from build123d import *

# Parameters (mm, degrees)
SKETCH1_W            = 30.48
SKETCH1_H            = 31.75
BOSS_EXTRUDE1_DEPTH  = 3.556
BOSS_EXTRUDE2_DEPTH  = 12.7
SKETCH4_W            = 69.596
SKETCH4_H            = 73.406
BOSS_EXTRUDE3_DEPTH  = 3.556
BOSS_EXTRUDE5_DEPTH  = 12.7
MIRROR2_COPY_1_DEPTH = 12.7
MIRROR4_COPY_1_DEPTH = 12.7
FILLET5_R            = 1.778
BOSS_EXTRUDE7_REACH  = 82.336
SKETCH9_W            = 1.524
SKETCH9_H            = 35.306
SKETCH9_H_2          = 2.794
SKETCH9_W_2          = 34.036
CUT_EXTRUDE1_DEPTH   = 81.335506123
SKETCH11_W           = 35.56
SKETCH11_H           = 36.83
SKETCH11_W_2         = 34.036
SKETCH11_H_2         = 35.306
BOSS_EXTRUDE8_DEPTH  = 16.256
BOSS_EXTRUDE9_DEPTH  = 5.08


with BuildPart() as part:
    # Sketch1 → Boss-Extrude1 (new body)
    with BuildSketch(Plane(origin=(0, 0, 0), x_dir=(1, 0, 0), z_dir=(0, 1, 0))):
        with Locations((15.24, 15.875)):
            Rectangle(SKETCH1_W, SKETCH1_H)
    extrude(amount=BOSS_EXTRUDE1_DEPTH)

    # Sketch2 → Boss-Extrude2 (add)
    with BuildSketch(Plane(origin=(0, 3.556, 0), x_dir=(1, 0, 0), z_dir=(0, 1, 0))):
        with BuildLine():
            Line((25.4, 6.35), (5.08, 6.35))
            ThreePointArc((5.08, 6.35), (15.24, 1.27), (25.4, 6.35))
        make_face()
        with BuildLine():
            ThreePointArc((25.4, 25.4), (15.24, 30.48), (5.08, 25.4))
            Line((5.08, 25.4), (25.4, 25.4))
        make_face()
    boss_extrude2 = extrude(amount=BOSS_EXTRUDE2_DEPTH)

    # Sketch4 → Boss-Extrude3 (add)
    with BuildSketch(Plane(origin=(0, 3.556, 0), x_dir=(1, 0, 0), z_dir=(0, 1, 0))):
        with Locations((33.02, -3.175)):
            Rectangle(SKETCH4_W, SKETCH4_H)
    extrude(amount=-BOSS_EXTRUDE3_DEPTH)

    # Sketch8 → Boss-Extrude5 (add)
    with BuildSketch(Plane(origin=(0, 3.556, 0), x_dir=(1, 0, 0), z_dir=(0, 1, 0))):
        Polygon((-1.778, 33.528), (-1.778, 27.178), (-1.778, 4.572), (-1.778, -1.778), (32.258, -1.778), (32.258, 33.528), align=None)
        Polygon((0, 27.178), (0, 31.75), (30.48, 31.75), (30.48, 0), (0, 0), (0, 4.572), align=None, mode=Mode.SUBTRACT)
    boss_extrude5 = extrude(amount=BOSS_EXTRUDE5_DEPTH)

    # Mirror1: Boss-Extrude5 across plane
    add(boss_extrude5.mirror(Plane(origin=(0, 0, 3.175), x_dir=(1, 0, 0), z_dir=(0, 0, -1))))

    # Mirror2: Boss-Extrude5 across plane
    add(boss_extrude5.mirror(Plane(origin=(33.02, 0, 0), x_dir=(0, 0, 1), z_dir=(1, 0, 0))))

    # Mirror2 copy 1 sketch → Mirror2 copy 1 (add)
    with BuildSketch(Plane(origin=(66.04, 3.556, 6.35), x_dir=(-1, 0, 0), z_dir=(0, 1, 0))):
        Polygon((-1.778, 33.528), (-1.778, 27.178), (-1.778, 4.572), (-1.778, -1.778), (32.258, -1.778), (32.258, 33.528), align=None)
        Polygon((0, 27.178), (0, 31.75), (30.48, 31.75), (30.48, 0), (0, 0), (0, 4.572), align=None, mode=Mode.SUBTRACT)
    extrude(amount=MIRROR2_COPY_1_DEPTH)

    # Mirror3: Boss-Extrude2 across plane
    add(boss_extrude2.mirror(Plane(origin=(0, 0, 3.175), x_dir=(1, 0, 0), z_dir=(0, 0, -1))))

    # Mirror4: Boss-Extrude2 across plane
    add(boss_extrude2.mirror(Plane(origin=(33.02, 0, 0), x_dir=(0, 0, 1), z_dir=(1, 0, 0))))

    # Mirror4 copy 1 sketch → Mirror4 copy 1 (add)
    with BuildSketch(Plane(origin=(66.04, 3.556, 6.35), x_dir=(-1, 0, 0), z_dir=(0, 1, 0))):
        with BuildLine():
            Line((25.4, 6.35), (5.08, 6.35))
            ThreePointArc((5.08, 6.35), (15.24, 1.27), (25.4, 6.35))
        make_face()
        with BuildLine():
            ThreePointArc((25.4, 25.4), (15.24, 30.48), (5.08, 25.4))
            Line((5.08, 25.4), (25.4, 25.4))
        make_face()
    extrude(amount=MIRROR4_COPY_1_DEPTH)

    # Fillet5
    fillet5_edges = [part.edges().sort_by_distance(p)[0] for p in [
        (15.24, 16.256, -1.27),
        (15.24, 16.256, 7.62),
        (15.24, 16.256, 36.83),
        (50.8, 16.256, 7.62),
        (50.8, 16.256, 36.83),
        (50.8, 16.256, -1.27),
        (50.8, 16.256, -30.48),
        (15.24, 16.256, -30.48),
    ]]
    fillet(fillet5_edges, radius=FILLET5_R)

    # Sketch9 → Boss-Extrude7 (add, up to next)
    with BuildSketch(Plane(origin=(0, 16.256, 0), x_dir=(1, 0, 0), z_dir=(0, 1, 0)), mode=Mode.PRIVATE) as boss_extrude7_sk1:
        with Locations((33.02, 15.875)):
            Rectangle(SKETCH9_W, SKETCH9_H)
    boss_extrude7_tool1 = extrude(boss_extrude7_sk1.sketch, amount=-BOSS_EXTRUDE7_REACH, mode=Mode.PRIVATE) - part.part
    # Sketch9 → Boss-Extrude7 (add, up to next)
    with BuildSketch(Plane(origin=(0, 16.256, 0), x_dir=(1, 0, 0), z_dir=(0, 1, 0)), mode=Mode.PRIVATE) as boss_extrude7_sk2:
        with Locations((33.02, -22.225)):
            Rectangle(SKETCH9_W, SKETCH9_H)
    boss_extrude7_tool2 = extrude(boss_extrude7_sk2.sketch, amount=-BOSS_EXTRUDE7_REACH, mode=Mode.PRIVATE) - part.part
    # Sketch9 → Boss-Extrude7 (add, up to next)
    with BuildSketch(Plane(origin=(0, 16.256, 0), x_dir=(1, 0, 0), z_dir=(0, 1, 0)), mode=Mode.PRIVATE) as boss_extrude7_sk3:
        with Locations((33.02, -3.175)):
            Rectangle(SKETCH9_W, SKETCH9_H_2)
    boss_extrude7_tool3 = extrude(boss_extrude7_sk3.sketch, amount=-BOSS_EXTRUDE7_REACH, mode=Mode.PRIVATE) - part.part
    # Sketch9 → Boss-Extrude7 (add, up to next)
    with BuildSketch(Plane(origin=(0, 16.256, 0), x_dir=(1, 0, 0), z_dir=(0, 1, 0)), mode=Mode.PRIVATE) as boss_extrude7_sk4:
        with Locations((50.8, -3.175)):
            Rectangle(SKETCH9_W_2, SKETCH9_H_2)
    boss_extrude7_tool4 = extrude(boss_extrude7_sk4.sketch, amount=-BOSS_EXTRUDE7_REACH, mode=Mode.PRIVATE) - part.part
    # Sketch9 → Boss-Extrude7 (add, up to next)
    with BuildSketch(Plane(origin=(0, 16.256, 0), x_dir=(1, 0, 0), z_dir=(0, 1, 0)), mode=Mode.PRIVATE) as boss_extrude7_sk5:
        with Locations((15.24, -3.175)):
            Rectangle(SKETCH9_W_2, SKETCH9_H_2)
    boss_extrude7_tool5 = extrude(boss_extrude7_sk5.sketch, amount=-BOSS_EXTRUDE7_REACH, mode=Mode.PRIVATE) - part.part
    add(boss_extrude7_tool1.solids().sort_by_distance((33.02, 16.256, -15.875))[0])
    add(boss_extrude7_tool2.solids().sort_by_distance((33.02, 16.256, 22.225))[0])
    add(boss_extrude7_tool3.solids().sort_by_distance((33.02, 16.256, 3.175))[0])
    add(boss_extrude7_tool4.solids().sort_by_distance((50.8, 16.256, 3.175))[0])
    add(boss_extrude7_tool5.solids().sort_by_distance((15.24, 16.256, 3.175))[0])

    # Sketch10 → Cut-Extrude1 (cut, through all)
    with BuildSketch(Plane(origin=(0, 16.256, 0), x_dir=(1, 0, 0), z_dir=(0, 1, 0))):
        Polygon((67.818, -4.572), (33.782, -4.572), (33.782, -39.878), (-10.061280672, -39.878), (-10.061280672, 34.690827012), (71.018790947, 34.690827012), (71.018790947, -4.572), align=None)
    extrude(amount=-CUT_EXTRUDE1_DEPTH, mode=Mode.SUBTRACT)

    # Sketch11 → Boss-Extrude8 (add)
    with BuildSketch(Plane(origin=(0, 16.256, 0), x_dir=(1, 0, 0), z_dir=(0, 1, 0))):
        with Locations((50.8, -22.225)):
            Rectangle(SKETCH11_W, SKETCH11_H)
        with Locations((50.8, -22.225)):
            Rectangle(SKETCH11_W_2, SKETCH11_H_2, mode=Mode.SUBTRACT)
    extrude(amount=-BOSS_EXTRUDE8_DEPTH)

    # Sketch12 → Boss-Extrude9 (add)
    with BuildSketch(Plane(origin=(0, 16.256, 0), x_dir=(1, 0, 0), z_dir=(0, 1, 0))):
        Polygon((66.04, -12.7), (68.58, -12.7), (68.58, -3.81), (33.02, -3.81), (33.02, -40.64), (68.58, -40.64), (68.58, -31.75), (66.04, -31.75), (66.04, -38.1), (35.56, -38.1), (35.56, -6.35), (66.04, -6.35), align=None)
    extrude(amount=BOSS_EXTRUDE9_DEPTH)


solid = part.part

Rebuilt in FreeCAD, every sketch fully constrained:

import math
import FreeCAD as App
import Part
import Sketcher
from FreeCAD import Vector
Q = App.Units.Quantity


def edges_at(feature, points):
    """Names of the edges that pass closest to the given points."""
    edges = feature.Shape.Edges
    near = lambda p: min(range(len(edges)), key=lambda i: edges[i].distToShape(Part.Vertex(*p))[0])
    return sorted({f"Edge{near(p) + 1}" for p in points})

doc = App.newDocument("Part")
body = doc.addObject("PartDesign::Body", "Body")

# Sketch on XZ plane
sketch1 = body.newObject("Sketcher::SketchObject", "Sketch")
sketch1.AttachmentSupport = (doc.getObject("XZ_Plane"), [""])
sketch1.MapMode = "FlatFace"
sketch1.addGeometry([
    Part.LineSegment(Vector(0, -31.75, 0), Vector(0, 0, 0)),
    Part.LineSegment(Vector(0, 0, 0), Vector(30.48, 0, 0)),
    Part.LineSegment(Vector(30.48, 0, 0), Vector(30.48, -31.75, 0)),
    Part.LineSegment(Vector(30.48, -31.75, 0), Vector(0, -31.75, 0)),
], False)
sketch1.addConstraint([
    Sketcher.Constraint("Coincident", 0, 2, 1, 1),
    Sketcher.Constraint("Coincident", 1, 2, 2, 1),
    Sketcher.Constraint("Coincident", 2, 2, 3, 1),
    Sketcher.Constraint("Coincident", 3, 2, 0, 1),
    Sketcher.Constraint("Vertical", 0),
    Sketcher.Constraint("Horizontal", 1),
    Sketcher.Constraint("Vertical", 2),
    Sketcher.Constraint("Horizontal", 3),
    Sketcher.Constraint("Coincident", 0, 2, -1, 1),
    Sketcher.Constraint("DistanceX", 1, 1, 1, 2, Q("1.2 in")),
    Sketcher.Constraint("DistanceY", 0, 1, 0, 2, Q("1.25 in")),
])
pad1 = body.newObject("PartDesign::Pad", "Pad")
pad1.Profile = sketch1
pad1.Length = Q("0.14 in")
pad1.Reversed = True

# Sketch on XZ plane
sketch2 = body.newObject("Sketcher::SketchObject", "Sketch001")
sketch2.AttachmentSupport = (doc.getObject("XZ_Plane"), [""])
sketch2.MapMode = "FlatFace"
sketch2.AttachmentOffset = App.Placement(Vector(0, 0, -0.14 * 25.4), App.Rotation())
sketch2.addGeometry([
    Part.LineSegment(Vector(25.4, -6.35, 0), Vector(5.08, -6.35, 0)),
    Part.ArcOfCircle(Part.Circle(Vector(15.24, -13.97, 0), Vector(0, 0, 1), 12.7), math.radians(36.869898), math.radians(143.130102)),
    Part.ArcOfCircle(Part.Circle(Vector(15.24, -17.78, 0), Vector(0, 0, 1), 12.7), math.radians(-143.130102), math.radians(-36.869898)),
    Part.LineSegment(Vector(5.08, -25.4, 0), Vector(25.4, -25.4, 0)),
], False)
sketch2.addConstraint([
    Sketcher.Constraint("Coincident", 0, 1, 1, 1),
    Sketcher.Constraint("Coincident", 1, 2, 0, 2),
    Sketcher.Constraint("Coincident", 2, 1, 3, 1),
    Sketcher.Constraint("Coincident", 3, 2, 2, 2),
    Sketcher.Constraint("Horizontal", 0),
    Sketcher.Constraint("Horizontal", 3),
    Sketcher.Constraint("Equal", 1, 2),
    Sketcher.Constraint("Vertical", 1, 3, 2, 3),
    Sketcher.Constraint("Vertical", 1, 2, 2, 1),
    Sketcher.Constraint("Radius", 1, Q("0.5 in")),
    Sketcher.Constraint("DistanceX", 0, 2, 0, 1, Q("0.8 in")),
    Sketcher.Constraint("DistanceX", -1, 1, 0, 1, Q("1 in")),
    Sketcher.Constraint("DistanceY", 2, 1, -1, 1, Q("1 in")),
    Sketcher.Constraint("DistanceY", 1, 3, -1, 1, Q("0.55 in")),
])
pad2 = body.newObject("PartDesign::Pad", "Pad001")
pad2.Profile = sketch2
pad2.Length = Q("0.5 in")
pad2.Reversed = True

# Sketch on XZ plane
sketch3 = body.newObject("Sketcher::SketchObject", "Sketch002")
sketch3.AttachmentSupport = (doc.getObject("XZ_Plane"), [""])
sketch3.MapMode = "FlatFace"
sketch3.AttachmentOffset = App.Placement(Vector(0, 0, -0.14 * 25.4), App.Rotation())
sketch3.addGeometry([
    Part.LineSegment(Vector(-1.778, -33.528, 0), Vector(-1.778, 39.878, 0)),
    Part.LineSegment(Vector(-1.778, 39.878, 0), Vector(67.818, 39.878, 0)),
    Part.LineSegment(Vector(67.818, 39.878, 0), Vector(67.818, -33.528, 0)),
    Part.LineSegment(Vector(67.818, -33.528, 0), Vector(-1.778, -33.528, 0)),
], False)
sketch3.addConstraint([
    Sketcher.Constraint("Coincident", 0, 2, 1, 1),
    Sketcher.Constraint("Coincident", 1, 2, 2, 1),
    Sketcher.Constraint("Coincident", 2, 2, 3, 1),
    Sketcher.Constraint("Coincident", 3, 2, 0, 1),
    Sketcher.Constraint("Vertical", 0),
    Sketcher.Constraint("Horizontal", 1),
    Sketcher.Constraint("Vertical", 2),
    Sketcher.Constraint("Horizontal", 3),
    Sketcher.Constraint("DistanceX", 1, 1, 1, 2, Q("2.74 in")),
    Sketcher.Constraint("DistanceY", 0, 1, 0, 2, Q("2.89 in")),
    Sketcher.Constraint("DistanceX", 0, 2, -1, 1, Q("0.07 in")),
    Sketcher.Constraint("DistanceY", -1, 1, 0, 2, Q("1.57 in")),
])
pad3 = body.newObject("PartDesign::Pad", "Pad002")
pad3.Profile = sketch3
pad3.Length = Q("0.14 in")

# Sketch on XZ plane
sketch4 = body.newObject("Sketcher::SketchObject", "Sketch003")
sketch4.AttachmentSupport = (doc.getObject("XZ_Plane"), [""])
sketch4.MapMode = "FlatFace"
sketch4.AttachmentOffset = App.Placement(Vector(0, 0, -0.14 * 25.4), App.Rotation())
sketch4.addGeometry([
    Part.LineSegment(Vector(-1.778, -33.528, 0), Vector(-1.778, 1.778, 0)),  # 0
    Part.LineSegment(Vector(-1.778, 1.778, 0), Vector(32.258, 1.778, 0)),  # 1
    Part.LineSegment(Vector(32.258, 1.778, 0), Vector(32.258, -33.528, 0)),  # 2
    Part.LineSegment(Vector(32.258, -33.528, 0), Vector(-1.778, -33.528, 0)),  # 3
    Part.LineSegment(Vector(0, 0, 0), Vector(0, -31.75, 0)),  # 4
    Part.LineSegment(Vector(0, -31.75, 0), Vector(30.48, -31.75, 0)),  # 5
    Part.LineSegment(Vector(30.48, -31.75, 0), Vector(30.48, 0, 0)),  # 6
    Part.LineSegment(Vector(30.48, 0, 0), Vector(0, 0, 0)),  # 7
], False)
sketch4.addConstraint([
    Sketcher.Constraint("Coincident", 0, 2, 1, 1),
    Sketcher.Constraint("Coincident", 1, 2, 2, 1),
    Sketcher.Constraint("Coincident", 2, 2, 3, 1),
    Sketcher.Constraint("Coincident", 3, 2, 0, 1),
    Sketcher.Constraint("Coincident", 4, 2, 5, 1),
    Sketcher.Constraint("Coincident", 5, 2, 6, 1),
    Sketcher.Constraint("Coincident", 6, 2, 7, 1),
    Sketcher.Constraint("Coincident", 7, 2, 4, 1),
    Sketcher.Constraint("Vertical", 0),
    Sketcher.Constraint("Horizontal", 1),
    Sketcher.Constraint("Vertical", 2),
    Sketcher.Constraint("Horizontal", 3),
    Sketcher.Constraint("Vertical", 4),
    Sketcher.Constraint("Horizontal", 5),
    Sketcher.Constraint("Vertical", 6),
    Sketcher.Constraint("Horizontal", 7),
    Sketcher.Constraint("Coincident", 7, 2, -1, 1),
    Sketcher.Constraint("DistanceX", 5, 1, 5, 2, Q("1.2 in")),
    Sketcher.Constraint("DistanceX", 1, 1, 1, 2, Q("1.34 in")),
    Sketcher.Constraint("DistanceY", 0, 1, 0, 2, Q("1.39 in")),
    Sketcher.Constraint("DistanceY", 4, 2, 4, 1, Q("1.25 in")),
    Sketcher.Constraint("DistanceX", 0, 2, -1, 1, Q("0.07 in")),
    Sketcher.Constraint("DistanceY", -1, 1, 0, 2, Q("0.07 in")),
])
pad4 = body.newObject("PartDesign::Pad", "Pad003")
pad4.Profile = sketch4
pad4.Length = Q("0.5 in")
pad4.Reversed = True
doc.recompute()

datumplane = body.newObject("PartDesign::Plane", "DatumPlane")
datumplane.AttachmentSupport = (doc.getObject("XY_Plane"), [""])
datumplane.MapMode = "FlatFace"
datumplane.AttachmentOffset = App.Placement(Vector(0, 0, 0.125 * 25.4), App.Rotation())
mirrored = body.newObject("PartDesign::Mirrored", "Mirrored")
mirrored.Originals = [pad4]
mirrored.MirrorPlane = (datumplane, [""])
body.Tip = mirrored
doc.recompute()

datumplane2 = body.newObject("PartDesign::Plane", "DatumPlane001")
datumplane2.AttachmentSupport = (doc.getObject("YZ_Plane"), [""])
datumplane2.MapMode = "FlatFace"
datumplane2.AttachmentOffset = App.Placement(Vector(0, 0, 1.3 * 25.4), App.Rotation())
mirrored2 = body.newObject("PartDesign::Mirrored", "Mirrored001")
mirrored2.Originals = [pad4]
mirrored2.MirrorPlane = (datumplane2, [""])
body.Tip = mirrored2

# Sketch on XZ plane
sketch5 = body.newObject("Sketcher::SketchObject", "Sketch004")
sketch5.AttachmentSupport = (doc.getObject("XZ_Plane"), [""])
sketch5.MapMode = "FlatFace"
sketch5.AttachmentOffset = App.Placement(Vector(0, 0, -0.14 * 25.4), App.Rotation())
sketch5.addGeometry([
    Part.LineSegment(Vector(67.818, 39.878, 0), Vector(67.818, 4.572, 0)),  # 0
    Part.LineSegment(Vector(67.818, 4.572, 0), Vector(33.782, 4.572, 0)),  # 1
    Part.LineSegment(Vector(33.782, 4.572, 0), Vector(33.782, 39.878, 0)),  # 2
    Part.LineSegment(Vector(33.782, 39.878, 0), Vector(67.818, 39.878, 0)),  # 3
    Part.LineSegment(Vector(66.04, 6.35, 0), Vector(66.04, 38.1, 0)),  # 4
    Part.LineSegment(Vector(66.04, 38.1, 0), Vector(35.56, 38.1, 0)),  # 5
    Part.LineSegment(Vector(35.56, 38.1, 0), Vector(35.56, 6.35, 0)),  # 6
    Part.LineSegment(Vector(35.56, 6.35, 0), Vector(66.04, 6.35, 0)),  # 7
], False)
sketch5.addConstraint([
    Sketcher.Constraint("Coincident", 0, 2, 1, 1),
    Sketcher.Constraint("Coincident", 1, 2, 2, 1),
    Sketcher.Constraint("Coincident", 2, 2, 3, 1),
    Sketcher.Constraint("Coincident", 3, 2, 0, 1),
    Sketcher.Constraint("Coincident", 4, 2, 5, 1),
    Sketcher.Constraint("Coincident", 5, 2, 6, 1),
    Sketcher.Constraint("Coincident", 6, 2, 7, 1),
    Sketcher.Constraint("Coincident", 7, 2, 4, 1),
    Sketcher.Constraint("Vertical", 0),
    Sketcher.Constraint("Horizontal", 1),
    Sketcher.Constraint("Vertical", 2),
    Sketcher.Constraint("Horizontal", 3),
    Sketcher.Constraint("Vertical", 4),
    Sketcher.Constraint("Horizontal", 5),
    Sketcher.Constraint("Vertical", 6),
    Sketcher.Constraint("Horizontal", 7),
    Sketcher.Constraint("DistanceX", 5, 2, 5, 1, Q("1.2 in")),
    Sketcher.Constraint("DistanceX", 1, 2, 1, 1, Q("1.34 in")),
    Sketcher.Constraint("DistanceY", 0, 2, 0, 1, Q("1.39 in")),
    Sketcher.Constraint("DistanceY", 4, 1, 4, 2, Q("1.25 in")),
    Sketcher.Constraint("DistanceX", -1, 1, 4, 2, Q("2.6 in")),
    Sketcher.Constraint("DistanceY", -1, 1, 4, 2, Q("1.5 in")),
    Sketcher.Constraint("DistanceX", -1, 1, 0, 2, Q("2.67 in")),
    Sketcher.Constraint("DistanceY", -1, 1, 0, 2, Q("0.18 in")),
])
pad5 = body.newObject("PartDesign::Pad", "Pad004")
pad5.Profile = sketch5
pad5.Length = Q("0.5 in")
pad5.Reversed = True
doc.recompute()

datumplane3 = body.newObject("PartDesign::Plane", "DatumPlane002")
datumplane3.AttachmentSupport = (doc.getObject("XY_Plane"), [""])
datumplane3.MapMode = "FlatFace"
datumplane3.AttachmentOffset = App.Placement(Vector(0, 0, 0.125 * 25.4), App.Rotation())
mirrored3 = body.newObject("PartDesign::Mirrored", "Mirrored002")
mirrored3.Originals = [pad2]
mirrored3.MirrorPlane = (datumplane3, [""])
body.Tip = mirrored3
doc.recompute()

datumplane4 = body.newObject("PartDesign::Plane", "DatumPlane003")
datumplane4.AttachmentSupport = (doc.getObject("YZ_Plane"), [""])
datumplane4.MapMode = "FlatFace"
datumplane4.AttachmentOffset = App.Placement(Vector(0, 0, 1.3 * 25.4), App.Rotation())
mirrored4 = body.newObject("PartDesign::Mirrored", "Mirrored003")
mirrored4.Originals = [pad2]
mirrored4.MirrorPlane = (datumplane4, [""])
body.Tip = mirrored4

# Sketch on XZ plane
sketch6 = body.newObject("Sketcher::SketchObject", "Sketch005")
sketch6.AttachmentSupport = (doc.getObject("XZ_Plane"), [""])
sketch6.MapMode = "FlatFace"
sketch6.AttachmentOffset = App.Placement(Vector(0, 0, -0.14 * 25.4), App.Rotation())
sketch6.addGeometry([
    Part.LineSegment(Vector(40.64, 12.7, 0), Vector(60.96, 12.7, 0)),
    Part.ArcOfCircle(Part.Circle(Vector(50.8, 20.32, 0), Vector(0, 0, 1), 12.7), math.radians(-143.130102), math.radians(-36.869898)),
    Part.ArcOfCircle(Part.Circle(Vector(50.8, 24.13, 0), Vector(0, 0, 1), 12.7), math.radians(36.869898), math.radians(143.130102)),
    Part.LineSegment(Vector(60.96, 31.75, 0), Vector(40.64, 31.75, 0)),
], False)
sketch6.addConstraint([
    Sketcher.Constraint("Coincident", 0, 1, 1, 1),
    Sketcher.Constraint("Coincident", 1, 2, 0, 2),
    Sketcher.Constraint("Coincident", 2, 1, 3, 1),
    Sketcher.Constraint("Coincident", 3, 2, 2, 2),
    Sketcher.Constraint("Horizontal", 0),
    Sketcher.Constraint("Horizontal", 3),
    Sketcher.Constraint("Equal", 1, 2),
    Sketcher.Constraint("Vertical", 1, 3, 2, 3),
    Sketcher.Constraint("Vertical", 1, 2, 2, 1),
    Sketcher.Constraint("Radius", 1, Q("0.5 in")),
    Sketcher.Constraint("DistanceX", 0, 1, 0, 2, Q("0.8 in")),
    Sketcher.Constraint("DistanceX", -1, 1, 1, 3, Q("2 in")),
    Sketcher.Constraint("DistanceY", -1, 1, 1, 3, Q("0.8 in")),
    Sketcher.Constraint("DistanceY", -1, 1, 2, 3, Q("0.95 in")),
])
pad6 = body.newObject("PartDesign::Pad", "Pad005")
pad6.Profile = sketch6
pad6.Length = Q("0.5 in")
pad6.Reversed = True
doc.recompute()

fillet = body.newObject("PartDesign::Fillet", "Fillet")
fillet.Base = (pad6, edges_at(pad6, [
    (15.24, 16.256, -1.27),
    (15.24, 16.256, 7.62),
    (15.24, 16.256, 36.83),
    (50.8, 16.256, 7.62),
    (50.8, 16.256, 36.83),
    (50.8, 16.256, -1.27),
    (50.8, 16.256, -30.48),
    (15.24, 16.256, -30.48),
]))
fillet.Radius = Q("0.07 in")

# Sketch on XZ plane
sketch7 = body.newObject("Sketcher::SketchObject", "Sketch006")
sketch7.AttachmentSupport = (doc.getObject("XZ_Plane"), [""])
sketch7.MapMode = "FlatFace"
sketch7.AttachmentOffset = App.Placement(Vector(0, 0, -0.64 * 25.4), App.Rotation())
sketch7.addGeometry([
    Part.LineSegment(Vector(32.258, -33.528, 0), Vector(32.258, 1.778, 0)),
    Part.LineSegment(Vector(32.258, 1.778, 0), Vector(33.782, 1.778, 0)),
    Part.LineSegment(Vector(33.782, 1.778, 0), Vector(33.782, -33.528, 0)),
    Part.LineSegment(Vector(33.782, -33.528, 0), Vector(32.258, -33.528, 0)),
], False)
sketch7.addConstraint([
    Sketcher.Constraint("Coincident", 0, 2, 1, 1),
    Sketcher.Constraint("Coincident", 1, 2, 2, 1),
    Sketcher.Constraint("Coincident", 2, 2, 3, 1),
    Sketcher.Constraint("Coincident", 3, 2, 0, 1),
    Sketcher.Constraint("Vertical", 0),
    Sketcher.Constraint("Horizontal", 1),
    Sketcher.Constraint("Vertical", 2),
    Sketcher.Constraint("Horizontal", 3),
    Sketcher.Constraint("DistanceX", 1, 1, 1, 2, Q("0.06 in")),
    Sketcher.Constraint("DistanceY", 0, 1, 0, 2, Q("1.39 in")),
    Sketcher.Constraint("DistanceX", -1, 1, 0, 2, Q("1.27 in")),
    Sketcher.Constraint("DistanceY", -1, 1, 0, 2, Q("0.07 in")),
])
pad7 = body.newObject("PartDesign::Pad", "Pad006")
pad7.Profile = sketch7
pad7.Type = "UpToFirst"

# Sketch on XZ plane
sketch8 = body.newObject("Sketcher::SketchObject", "Sketch007")
sketch8.AttachmentSupport = (doc.getObject("XZ_Plane"), [""])
sketch8.MapMode = "FlatFace"
sketch8.AttachmentOffset = App.Placement(Vector(0, 0, -0.64 * 25.4), App.Rotation())
sketch8.addGeometry([
    Part.LineSegment(Vector(32.258, 4.572, 0), Vector(32.258, 39.878, 0)),
    Part.LineSegment(Vector(32.258, 39.878, 0), Vector(33.782, 39.878, 0)),
    Part.LineSegment(Vector(33.782, 39.878, 0), Vector(33.782, 4.572, 0)),
    Part.LineSegment(Vector(33.782, 4.572, 0), Vector(32.258, 4.572, 0)),
], False)
sketch8.addConstraint([
    Sketcher.Constraint("Coincident", 0, 2, 1, 1),
    Sketcher.Constraint("Coincident", 1, 2, 2, 1),
    Sketcher.Constraint("Coincident", 2, 2, 3, 1),
    Sketcher.Constraint("Coincident", 3, 2, 0, 1),
    Sketcher.Constraint("Vertical", 0),
    Sketcher.Constraint("Horizontal", 1),
    Sketcher.Constraint("Vertical", 2),
    Sketcher.Constraint("Horizontal", 3),
    Sketcher.Constraint("DistanceX", 1, 1, 1, 2, Q("0.06 in")),
    Sketcher.Constraint("DistanceY", 0, 1, 0, 2, Q("1.39 in")),
    Sketcher.Constraint("DistanceX", -1, 1, 0, 2, Q("1.27 in")),
    Sketcher.Constraint("DistanceY", -1, 1, 0, 2, Q("1.57 in")),
])
pad8 = body.newObject("PartDesign::Pad", "Pad007")
pad8.Profile = sketch8
pad8.Type = "UpToFirst"

# Sketch on XZ plane
sketch9 = body.newObject("Sketcher::SketchObject", "Sketch008")
sketch9.AttachmentSupport = (doc.getObject("XZ_Plane"), [""])
sketch9.MapMode = "FlatFace"
sketch9.AttachmentOffset = App.Placement(Vector(0, 0, -0.64 * 25.4), App.Rotation())
sketch9.addGeometry([
    Part.LineSegment(Vector(32.258, 1.778, 0), Vector(32.258, 4.572, 0)),
    Part.LineSegment(Vector(32.258, 4.572, 0), Vector(33.782, 4.572, 0)),
    Part.LineSegment(Vector(33.782, 4.572, 0), Vector(33.782, 1.778, 0)),
    Part.LineSegment(Vector(33.782, 1.778, 0), Vector(32.258, 1.778, 0)),
], False)
sketch9.addConstraint([
    Sketcher.Constraint("Coincident", 0, 2, 1, 1),
    Sketcher.Constraint("Coincident", 1, 2, 2, 1),
    Sketcher.Constraint("Coincident", 2, 2, 3, 1),
    Sketcher.Constraint("Coincident", 3, 2, 0, 1),
    Sketcher.Constraint("Vertical", 0),
    Sketcher.Constraint("Horizontal", 1),
    Sketcher.Constraint("Vertical", 2),
    Sketcher.Constraint("Horizontal", 3),
    Sketcher.Constraint("DistanceX", 1, 1, 1, 2, Q("0.06 in")),
    Sketcher.Constraint("DistanceY", 0, 1, 0, 2, Q("0.11 in")),
    Sketcher.Constraint("DistanceX", -1, 1, 0, 2, Q("1.27 in")),
    Sketcher.Constraint("DistanceY", -1, 1, 0, 2, Q("0.18 in")),
])
pad9 = body.newObject("PartDesign::Pad", "Pad008")
pad9.Profile = sketch9
pad9.Type = "UpToFirst"

# Sketch on XZ plane
sketch10 = body.newObject("Sketcher::SketchObject", "Sketch009")
sketch10.AttachmentSupport = (doc.getObject("XZ_Plane"), [""])
sketch10.MapMode = "FlatFace"
sketch10.AttachmentOffset = App.Placement(Vector(0, 0, -0.64 * 25.4), App.Rotation())
sketch10.addGeometry([
    Part.LineSegment(Vector(33.782, 1.778, 0), Vector(33.782, 4.572, 0)),
    Part.LineSegment(Vector(33.782, 4.572, 0), Vector(67.818, 4.572, 0)),
    Part.LineSegment(Vector(67.818, 4.572, 0), Vector(67.818, 1.778, 0)),
    Part.LineSegment(Vector(67.818, 1.778, 0), Vector(33.782, 1.778, 0)),
], False)
sketch10.addConstraint([
    Sketcher.Constraint("Coincident", 0, 2, 1, 1),
    Sketcher.Constraint("Coincident", 1, 2, 2, 1),
    Sketcher.Constraint("Coincident", 2, 2, 3, 1),
    Sketcher.Constraint("Coincident", 3, 2, 0, 1),
    Sketcher.Constraint("Vertical", 0),
    Sketcher.Constraint("Horizontal", 1),
    Sketcher.Constraint("Vertical", 2),
    Sketcher.Constraint("Horizontal", 3),
    Sketcher.Constraint("DistanceX", 1, 1, 1, 2, Q("1.34 in")),
    Sketcher.Constraint("DistanceY", 0, 1, 0, 2, Q("0.11 in")),
    Sketcher.Constraint("DistanceX", -1, 1, 0, 2, Q("1.33 in")),
    Sketcher.Constraint("DistanceY", -1, 1, 0, 2, Q("0.18 in")),
])
pad10 = body.newObject("PartDesign::Pad", "Pad009")
pad10.Profile = sketch10
pad10.Type = "UpToFirst"

# Sketch on XZ plane
sketch11 = body.newObject("Sketcher::SketchObject", "Sketch010")
sketch11.AttachmentSupport = (doc.getObject("XZ_Plane"), [""])
sketch11.MapMode = "FlatFace"
sketch11.AttachmentOffset = App.Placement(Vector(0, 0, -0.64 * 25.4), App.Rotation())
sketch11.addGeometry([
    Part.LineSegment(Vector(-1.778, 1.778, 0), Vector(-1.778, 4.572, 0)),
    Part.LineSegment(Vector(-1.778, 4.572, 0), Vector(32.258, 4.572, 0)),
    Part.LineSegment(Vector(32.258, 4.572, 0), Vector(32.258, 1.778, 0)),
    Part.LineSegment(Vector(32.258, 1.778, 0), Vector(-1.778, 1.778, 0)),
], False)
sketch11.addConstraint([
    Sketcher.Constraint("Coincident", 0, 2, 1, 1),
    Sketcher.Constraint("Coincident", 1, 2, 2, 1),
    Sketcher.Constraint("Coincident", 2, 2, 3, 1),
    Sketcher.Constraint("Coincident", 3, 2, 0, 1),
    Sketcher.Constraint("Vertical", 0),
    Sketcher.Constraint("Horizontal", 1),
    Sketcher.Constraint("Vertical", 2),
    Sketcher.Constraint("Horizontal", 3),
    Sketcher.Constraint("DistanceX", 1, 1, 1, 2, Q("1.34 in")),
    Sketcher.Constraint("DistanceY", 0, 1, 0, 2, Q("0.11 in")),
    Sketcher.Constraint("DistanceX", 0, 2, -1, 1, Q("0.07 in")),
    Sketcher.Constraint("DistanceY", -1, 1, 0, 2, Q("0.18 in")),
])
pad11 = body.newObject("PartDesign::Pad", "Pad010")
pad11.Profile = sketch11
pad11.Type = "UpToFirst"

# Sketch on XZ plane
sketch12 = body.newObject("Sketcher::SketchObject", "Sketch011")
sketch12.AttachmentSupport = (doc.getObject("XZ_Plane"), [""])
sketch12.MapMode = "FlatFace"
sketch12.AttachmentOffset = App.Placement(Vector(0, 0, -0.64 * 25.4), App.Rotation())
sketch12.addGeometry([
    Part.LineSegment(Vector(33.782, 4.572, 0), Vector(71.018791, 4.572, 0)),  # 0
    Part.LineSegment(Vector(71.018791, 4.572, 0), Vector(71.018791, -34.690827, 0)),  # 1
    Part.LineSegment(Vector(71.018791, -34.690827, 0), Vector(-10.061281, -34.690827, 0)),  # 2
    Part.LineSegment(Vector(-10.061281, -34.690827, 0), Vector(-10.061281, 39.878, 0)),  # 3
    Part.LineSegment(Vector(-10.061281, 39.878, 0), Vector(33.782, 39.878, 0)),  # 4
    Part.LineSegment(Vector(33.782, 39.878, 0), Vector(33.782, 4.572, 0)),  # 5
], False)
sketch12.addConstraint([
    Sketcher.Constraint("Coincident", 0, 2, 1, 1),
    Sketcher.Constraint("Coincident", 1, 2, 2, 1),
    Sketcher.Constraint("Coincident", 2, 2, 3, 1),
    Sketcher.Constraint("Coincident", 3, 2, 4, 1),
    Sketcher.Constraint("Coincident", 4, 2, 5, 1),
    Sketcher.Constraint("Coincident", 5, 2, 0, 1),
    Sketcher.Constraint("Horizontal", 0),
    Sketcher.Constraint("Vertical", 1),
    Sketcher.Constraint("Horizontal", 2),
    Sketcher.Constraint("Vertical", 3),
    Sketcher.Constraint("Horizontal", 4),
    Sketcher.Constraint("Vertical", 5),
    Sketcher.Constraint("DistanceY", 5, 2, 5, 1, Q("1.39 in")),
    Sketcher.Constraint("DistanceY", -1, 1, 0, 2, Q("0.18 in")),
    Sketcher.Constraint("DistanceX", -1, 1, 4, 2, Q("1.33 in")),
    Sketcher.Constraint("DistanceX", 0, 1, 0, 2, 37.236791),
    Sketcher.Constraint("DistanceX", 2, 2, 2, 1, 81.080072),
    Sketcher.Constraint("DistanceY", 1, 2, 1, 1, 39.262827),
])
pocket1 = body.newObject("PartDesign::Pocket", "Pocket")
pocket1.Profile = sketch12
pocket1.Type = "ThroughAll"
pocket1.Reversed = True

# Sketch on XZ plane
sketch13 = body.newObject("Sketcher::SketchObject", "Sketch012")
sketch13.AttachmentSupport = (doc.getObject("XZ_Plane"), [""])
sketch13.MapMode = "FlatFace"
sketch13.AttachmentOffset = App.Placement(Vector(0, 0, -0.64 * 25.4), App.Rotation())
sketch13.addGeometry([
    Part.LineSegment(Vector(33.02, 3.81, 0), Vector(33.02, 40.64, 0)),  # 0
    Part.LineSegment(Vector(33.02, 40.64, 0), Vector(68.58, 40.64, 0)),  # 1
    Part.LineSegment(Vector(68.58, 40.64, 0), Vector(68.58, 3.81, 0)),  # 2
    Part.LineSegment(Vector(68.58, 3.81, 0), Vector(33.02, 3.81, 0)),  # 3
    Part.LineSegment(Vector(67.818, 39.878, 0), Vector(33.782, 39.878, 0)),  # 4
    Part.LineSegment(Vector(33.782, 39.878, 0), Vector(33.782, 4.572, 0)),  # 5
    Part.LineSegment(Vector(33.782, 4.572, 0), Vector(67.818, 4.572, 0)),  # 6
    Part.LineSegment(Vector(67.818, 4.572, 0), Vector(67.818, 39.878, 0)),  # 7
], False)
sketch13.addConstraint([
    Sketcher.Constraint("Coincident", 0, 2, 1, 1),
    Sketcher.Constraint("Coincident", 1, 2, 2, 1),
    Sketcher.Constraint("Coincident", 2, 2, 3, 1),
    Sketcher.Constraint("Coincident", 3, 2, 0, 1),
    Sketcher.Constraint("Coincident", 4, 2, 5, 1),
    Sketcher.Constraint("Coincident", 5, 2, 6, 1),
    Sketcher.Constraint("Coincident", 6, 2, 7, 1),
    Sketcher.Constraint("Coincident", 7, 2, 4, 1),
    Sketcher.Constraint("Vertical", 0),
    Sketcher.Constraint("Horizontal", 1),
    Sketcher.Constraint("Vertical", 2),
    Sketcher.Constraint("Horizontal", 3),
    Sketcher.Constraint("Horizontal", 4),
    Sketcher.Constraint("Vertical", 5),
    Sketcher.Constraint("Horizontal", 6),
    Sketcher.Constraint("Vertical", 7),
    Sketcher.Constraint("DistanceX", 1, 1, 1, 2, Q("1.4 in")),
    Sketcher.Constraint("DistanceX", 4, 2, 4, 1, Q("1.34 in")),
    Sketcher.Constraint("DistanceY", 0, 1, 0, 2, Q("1.45 in")),
    Sketcher.Constraint("DistanceY", 5, 2, 5, 1, Q("1.39 in")),
    Sketcher.Constraint("DistanceX", -1, 1, 0, 2, Q("1.3 in")),
    Sketcher.Constraint("DistanceY", -1, 1, 0, 2, Q("1.6 in")),
    Sketcher.Constraint("DistanceX", -1, 1, 4, 2, Q("1.33 in")),
    Sketcher.Constraint("DistanceY", -1, 1, 4, 2, Q("1.57 in")),
])
pad12 = body.newObject("PartDesign::Pad", "Pad011")
pad12.Profile = sketch13
pad12.Length = Q("0.64 in")

# Sketch on XZ plane
sketch14 = body.newObject("Sketcher::SketchObject", "Sketch013")
sketch14.AttachmentSupport = (doc.getObject("XZ_Plane"), [""])
sketch14.MapMode = "FlatFace"
sketch14.AttachmentOffset = App.Placement(Vector(0, 0, -0.64 * 25.4), App.Rotation())
sketch14.addGeometry([
    Part.LineSegment(Vector(66.04, 12.7, 0), Vector(68.58, 12.7, 0)),  # 0
    Part.LineSegment(Vector(68.58, 12.7, 0), Vector(68.58, 3.81, 0)),  # 1
    Part.LineSegment(Vector(68.58, 3.81, 0), Vector(33.02, 3.81, 0)),  # 2
    Part.LineSegment(Vector(33.02, 3.81, 0), Vector(33.02, 40.64, 0)),  # 3
    Part.LineSegment(Vector(33.02, 40.64, 0), Vector(68.58, 40.64, 0)),  # 4
    Part.LineSegment(Vector(68.58, 40.64, 0), Vector(68.58, 31.75, 0)),  # 5
    Part.LineSegment(Vector(68.58, 31.75, 0), Vector(66.04, 31.75, 0)),  # 6
    Part.LineSegment(Vector(66.04, 31.75, 0), Vector(66.04, 38.1, 0)),  # 7
    Part.LineSegment(Vector(66.04, 38.1, 0), Vector(35.56, 38.1, 0)),  # 8
    Part.LineSegment(Vector(35.56, 38.1, 0), Vector(35.56, 6.35, 0)),  # 9
    Part.LineSegment(Vector(35.56, 6.35, 0), Vector(66.04, 6.35, 0)),  # 10
    Part.LineSegment(Vector(66.04, 6.35, 0), Vector(66.04, 12.7, 0)),  # 11
], False)
sketch14.addConstraint([
    Sketcher.Constraint("Coincident", 0, 2, 1, 1),
    Sketcher.Constraint("Coincident", 1, 2, 2, 1),
    Sketcher.Constraint("Coincident", 2, 2, 3, 1),
    Sketcher.Constraint("Coincident", 3, 2, 4, 1),
    Sketcher.Constraint("Coincident", 4, 2, 5, 1),
    Sketcher.Constraint("Coincident", 5, 2, 6, 1),
    Sketcher.Constraint("Coincident", 6, 2, 7, 1),
    Sketcher.Constraint("Coincident", 7, 2, 8, 1),
    Sketcher.Constraint("Coincident", 8, 2, 9, 1),
    Sketcher.Constraint("Coincident", 9, 2, 10, 1),
    Sketcher.Constraint("Coincident", 10, 2, 11, 1),
    Sketcher.Constraint("Coincident", 11, 2, 0, 1),
    Sketcher.Constraint("Horizontal", 0),
    Sketcher.Constraint("Vertical", 1),
    Sketcher.Constraint("Horizontal", 2),
    Sketcher.Constraint("Vertical", 3),
    Sketcher.Constraint("Horizontal", 4),
    Sketcher.Constraint("Vertical", 5),
    Sketcher.Constraint("Horizontal", 6),
    Sketcher.Constraint("Vertical", 7),
    Sketcher.Constraint("Horizontal", 8),
    Sketcher.Constraint("Vertical", 9),
    Sketcher.Constraint("Horizontal", 10),
    Sketcher.Constraint("Vertical", 11),
    Sketcher.Constraint("Vertical", 1, 2, 4, 2),
    Sketcher.Constraint("Vertical", 7, 2, 10, 2),
    Sketcher.Constraint("Equal", 1, 5),
    Sketcher.Constraint("Equal", 7, 11),
    Sketcher.Constraint("DistanceX", 0, 1, 0, 2, Q("0.1 in")),
    Sketcher.Constraint("DistanceX", 2, 2, 2, 1, Q("1.4 in")),
    Sketcher.Constraint("DistanceX", 8, 2, 8, 1, Q("1.2 in")),
    Sketcher.Constraint("DistanceY", 0, 2, 7, 2, Q("1 in")),
    Sketcher.Constraint("DistanceY", 1, 2, 1, 1, Q("0.35 in")),
    Sketcher.Constraint("DistanceY", 3, 1, 3, 2, Q("1.45 in")),
    Sketcher.Constraint("DistanceX", -1, 1, 0, 2, Q("2.7 in")),
    Sketcher.Constraint("DistanceY", -1, 1, 0, 2, Q("0.5 in")),
])
pad13 = body.newObject("PartDesign::Pad", "Pad012")
pad13.Profile = sketch14
pad13.Length = Q("0.2 in")
pad13.Reversed = True

doc.recompute()
